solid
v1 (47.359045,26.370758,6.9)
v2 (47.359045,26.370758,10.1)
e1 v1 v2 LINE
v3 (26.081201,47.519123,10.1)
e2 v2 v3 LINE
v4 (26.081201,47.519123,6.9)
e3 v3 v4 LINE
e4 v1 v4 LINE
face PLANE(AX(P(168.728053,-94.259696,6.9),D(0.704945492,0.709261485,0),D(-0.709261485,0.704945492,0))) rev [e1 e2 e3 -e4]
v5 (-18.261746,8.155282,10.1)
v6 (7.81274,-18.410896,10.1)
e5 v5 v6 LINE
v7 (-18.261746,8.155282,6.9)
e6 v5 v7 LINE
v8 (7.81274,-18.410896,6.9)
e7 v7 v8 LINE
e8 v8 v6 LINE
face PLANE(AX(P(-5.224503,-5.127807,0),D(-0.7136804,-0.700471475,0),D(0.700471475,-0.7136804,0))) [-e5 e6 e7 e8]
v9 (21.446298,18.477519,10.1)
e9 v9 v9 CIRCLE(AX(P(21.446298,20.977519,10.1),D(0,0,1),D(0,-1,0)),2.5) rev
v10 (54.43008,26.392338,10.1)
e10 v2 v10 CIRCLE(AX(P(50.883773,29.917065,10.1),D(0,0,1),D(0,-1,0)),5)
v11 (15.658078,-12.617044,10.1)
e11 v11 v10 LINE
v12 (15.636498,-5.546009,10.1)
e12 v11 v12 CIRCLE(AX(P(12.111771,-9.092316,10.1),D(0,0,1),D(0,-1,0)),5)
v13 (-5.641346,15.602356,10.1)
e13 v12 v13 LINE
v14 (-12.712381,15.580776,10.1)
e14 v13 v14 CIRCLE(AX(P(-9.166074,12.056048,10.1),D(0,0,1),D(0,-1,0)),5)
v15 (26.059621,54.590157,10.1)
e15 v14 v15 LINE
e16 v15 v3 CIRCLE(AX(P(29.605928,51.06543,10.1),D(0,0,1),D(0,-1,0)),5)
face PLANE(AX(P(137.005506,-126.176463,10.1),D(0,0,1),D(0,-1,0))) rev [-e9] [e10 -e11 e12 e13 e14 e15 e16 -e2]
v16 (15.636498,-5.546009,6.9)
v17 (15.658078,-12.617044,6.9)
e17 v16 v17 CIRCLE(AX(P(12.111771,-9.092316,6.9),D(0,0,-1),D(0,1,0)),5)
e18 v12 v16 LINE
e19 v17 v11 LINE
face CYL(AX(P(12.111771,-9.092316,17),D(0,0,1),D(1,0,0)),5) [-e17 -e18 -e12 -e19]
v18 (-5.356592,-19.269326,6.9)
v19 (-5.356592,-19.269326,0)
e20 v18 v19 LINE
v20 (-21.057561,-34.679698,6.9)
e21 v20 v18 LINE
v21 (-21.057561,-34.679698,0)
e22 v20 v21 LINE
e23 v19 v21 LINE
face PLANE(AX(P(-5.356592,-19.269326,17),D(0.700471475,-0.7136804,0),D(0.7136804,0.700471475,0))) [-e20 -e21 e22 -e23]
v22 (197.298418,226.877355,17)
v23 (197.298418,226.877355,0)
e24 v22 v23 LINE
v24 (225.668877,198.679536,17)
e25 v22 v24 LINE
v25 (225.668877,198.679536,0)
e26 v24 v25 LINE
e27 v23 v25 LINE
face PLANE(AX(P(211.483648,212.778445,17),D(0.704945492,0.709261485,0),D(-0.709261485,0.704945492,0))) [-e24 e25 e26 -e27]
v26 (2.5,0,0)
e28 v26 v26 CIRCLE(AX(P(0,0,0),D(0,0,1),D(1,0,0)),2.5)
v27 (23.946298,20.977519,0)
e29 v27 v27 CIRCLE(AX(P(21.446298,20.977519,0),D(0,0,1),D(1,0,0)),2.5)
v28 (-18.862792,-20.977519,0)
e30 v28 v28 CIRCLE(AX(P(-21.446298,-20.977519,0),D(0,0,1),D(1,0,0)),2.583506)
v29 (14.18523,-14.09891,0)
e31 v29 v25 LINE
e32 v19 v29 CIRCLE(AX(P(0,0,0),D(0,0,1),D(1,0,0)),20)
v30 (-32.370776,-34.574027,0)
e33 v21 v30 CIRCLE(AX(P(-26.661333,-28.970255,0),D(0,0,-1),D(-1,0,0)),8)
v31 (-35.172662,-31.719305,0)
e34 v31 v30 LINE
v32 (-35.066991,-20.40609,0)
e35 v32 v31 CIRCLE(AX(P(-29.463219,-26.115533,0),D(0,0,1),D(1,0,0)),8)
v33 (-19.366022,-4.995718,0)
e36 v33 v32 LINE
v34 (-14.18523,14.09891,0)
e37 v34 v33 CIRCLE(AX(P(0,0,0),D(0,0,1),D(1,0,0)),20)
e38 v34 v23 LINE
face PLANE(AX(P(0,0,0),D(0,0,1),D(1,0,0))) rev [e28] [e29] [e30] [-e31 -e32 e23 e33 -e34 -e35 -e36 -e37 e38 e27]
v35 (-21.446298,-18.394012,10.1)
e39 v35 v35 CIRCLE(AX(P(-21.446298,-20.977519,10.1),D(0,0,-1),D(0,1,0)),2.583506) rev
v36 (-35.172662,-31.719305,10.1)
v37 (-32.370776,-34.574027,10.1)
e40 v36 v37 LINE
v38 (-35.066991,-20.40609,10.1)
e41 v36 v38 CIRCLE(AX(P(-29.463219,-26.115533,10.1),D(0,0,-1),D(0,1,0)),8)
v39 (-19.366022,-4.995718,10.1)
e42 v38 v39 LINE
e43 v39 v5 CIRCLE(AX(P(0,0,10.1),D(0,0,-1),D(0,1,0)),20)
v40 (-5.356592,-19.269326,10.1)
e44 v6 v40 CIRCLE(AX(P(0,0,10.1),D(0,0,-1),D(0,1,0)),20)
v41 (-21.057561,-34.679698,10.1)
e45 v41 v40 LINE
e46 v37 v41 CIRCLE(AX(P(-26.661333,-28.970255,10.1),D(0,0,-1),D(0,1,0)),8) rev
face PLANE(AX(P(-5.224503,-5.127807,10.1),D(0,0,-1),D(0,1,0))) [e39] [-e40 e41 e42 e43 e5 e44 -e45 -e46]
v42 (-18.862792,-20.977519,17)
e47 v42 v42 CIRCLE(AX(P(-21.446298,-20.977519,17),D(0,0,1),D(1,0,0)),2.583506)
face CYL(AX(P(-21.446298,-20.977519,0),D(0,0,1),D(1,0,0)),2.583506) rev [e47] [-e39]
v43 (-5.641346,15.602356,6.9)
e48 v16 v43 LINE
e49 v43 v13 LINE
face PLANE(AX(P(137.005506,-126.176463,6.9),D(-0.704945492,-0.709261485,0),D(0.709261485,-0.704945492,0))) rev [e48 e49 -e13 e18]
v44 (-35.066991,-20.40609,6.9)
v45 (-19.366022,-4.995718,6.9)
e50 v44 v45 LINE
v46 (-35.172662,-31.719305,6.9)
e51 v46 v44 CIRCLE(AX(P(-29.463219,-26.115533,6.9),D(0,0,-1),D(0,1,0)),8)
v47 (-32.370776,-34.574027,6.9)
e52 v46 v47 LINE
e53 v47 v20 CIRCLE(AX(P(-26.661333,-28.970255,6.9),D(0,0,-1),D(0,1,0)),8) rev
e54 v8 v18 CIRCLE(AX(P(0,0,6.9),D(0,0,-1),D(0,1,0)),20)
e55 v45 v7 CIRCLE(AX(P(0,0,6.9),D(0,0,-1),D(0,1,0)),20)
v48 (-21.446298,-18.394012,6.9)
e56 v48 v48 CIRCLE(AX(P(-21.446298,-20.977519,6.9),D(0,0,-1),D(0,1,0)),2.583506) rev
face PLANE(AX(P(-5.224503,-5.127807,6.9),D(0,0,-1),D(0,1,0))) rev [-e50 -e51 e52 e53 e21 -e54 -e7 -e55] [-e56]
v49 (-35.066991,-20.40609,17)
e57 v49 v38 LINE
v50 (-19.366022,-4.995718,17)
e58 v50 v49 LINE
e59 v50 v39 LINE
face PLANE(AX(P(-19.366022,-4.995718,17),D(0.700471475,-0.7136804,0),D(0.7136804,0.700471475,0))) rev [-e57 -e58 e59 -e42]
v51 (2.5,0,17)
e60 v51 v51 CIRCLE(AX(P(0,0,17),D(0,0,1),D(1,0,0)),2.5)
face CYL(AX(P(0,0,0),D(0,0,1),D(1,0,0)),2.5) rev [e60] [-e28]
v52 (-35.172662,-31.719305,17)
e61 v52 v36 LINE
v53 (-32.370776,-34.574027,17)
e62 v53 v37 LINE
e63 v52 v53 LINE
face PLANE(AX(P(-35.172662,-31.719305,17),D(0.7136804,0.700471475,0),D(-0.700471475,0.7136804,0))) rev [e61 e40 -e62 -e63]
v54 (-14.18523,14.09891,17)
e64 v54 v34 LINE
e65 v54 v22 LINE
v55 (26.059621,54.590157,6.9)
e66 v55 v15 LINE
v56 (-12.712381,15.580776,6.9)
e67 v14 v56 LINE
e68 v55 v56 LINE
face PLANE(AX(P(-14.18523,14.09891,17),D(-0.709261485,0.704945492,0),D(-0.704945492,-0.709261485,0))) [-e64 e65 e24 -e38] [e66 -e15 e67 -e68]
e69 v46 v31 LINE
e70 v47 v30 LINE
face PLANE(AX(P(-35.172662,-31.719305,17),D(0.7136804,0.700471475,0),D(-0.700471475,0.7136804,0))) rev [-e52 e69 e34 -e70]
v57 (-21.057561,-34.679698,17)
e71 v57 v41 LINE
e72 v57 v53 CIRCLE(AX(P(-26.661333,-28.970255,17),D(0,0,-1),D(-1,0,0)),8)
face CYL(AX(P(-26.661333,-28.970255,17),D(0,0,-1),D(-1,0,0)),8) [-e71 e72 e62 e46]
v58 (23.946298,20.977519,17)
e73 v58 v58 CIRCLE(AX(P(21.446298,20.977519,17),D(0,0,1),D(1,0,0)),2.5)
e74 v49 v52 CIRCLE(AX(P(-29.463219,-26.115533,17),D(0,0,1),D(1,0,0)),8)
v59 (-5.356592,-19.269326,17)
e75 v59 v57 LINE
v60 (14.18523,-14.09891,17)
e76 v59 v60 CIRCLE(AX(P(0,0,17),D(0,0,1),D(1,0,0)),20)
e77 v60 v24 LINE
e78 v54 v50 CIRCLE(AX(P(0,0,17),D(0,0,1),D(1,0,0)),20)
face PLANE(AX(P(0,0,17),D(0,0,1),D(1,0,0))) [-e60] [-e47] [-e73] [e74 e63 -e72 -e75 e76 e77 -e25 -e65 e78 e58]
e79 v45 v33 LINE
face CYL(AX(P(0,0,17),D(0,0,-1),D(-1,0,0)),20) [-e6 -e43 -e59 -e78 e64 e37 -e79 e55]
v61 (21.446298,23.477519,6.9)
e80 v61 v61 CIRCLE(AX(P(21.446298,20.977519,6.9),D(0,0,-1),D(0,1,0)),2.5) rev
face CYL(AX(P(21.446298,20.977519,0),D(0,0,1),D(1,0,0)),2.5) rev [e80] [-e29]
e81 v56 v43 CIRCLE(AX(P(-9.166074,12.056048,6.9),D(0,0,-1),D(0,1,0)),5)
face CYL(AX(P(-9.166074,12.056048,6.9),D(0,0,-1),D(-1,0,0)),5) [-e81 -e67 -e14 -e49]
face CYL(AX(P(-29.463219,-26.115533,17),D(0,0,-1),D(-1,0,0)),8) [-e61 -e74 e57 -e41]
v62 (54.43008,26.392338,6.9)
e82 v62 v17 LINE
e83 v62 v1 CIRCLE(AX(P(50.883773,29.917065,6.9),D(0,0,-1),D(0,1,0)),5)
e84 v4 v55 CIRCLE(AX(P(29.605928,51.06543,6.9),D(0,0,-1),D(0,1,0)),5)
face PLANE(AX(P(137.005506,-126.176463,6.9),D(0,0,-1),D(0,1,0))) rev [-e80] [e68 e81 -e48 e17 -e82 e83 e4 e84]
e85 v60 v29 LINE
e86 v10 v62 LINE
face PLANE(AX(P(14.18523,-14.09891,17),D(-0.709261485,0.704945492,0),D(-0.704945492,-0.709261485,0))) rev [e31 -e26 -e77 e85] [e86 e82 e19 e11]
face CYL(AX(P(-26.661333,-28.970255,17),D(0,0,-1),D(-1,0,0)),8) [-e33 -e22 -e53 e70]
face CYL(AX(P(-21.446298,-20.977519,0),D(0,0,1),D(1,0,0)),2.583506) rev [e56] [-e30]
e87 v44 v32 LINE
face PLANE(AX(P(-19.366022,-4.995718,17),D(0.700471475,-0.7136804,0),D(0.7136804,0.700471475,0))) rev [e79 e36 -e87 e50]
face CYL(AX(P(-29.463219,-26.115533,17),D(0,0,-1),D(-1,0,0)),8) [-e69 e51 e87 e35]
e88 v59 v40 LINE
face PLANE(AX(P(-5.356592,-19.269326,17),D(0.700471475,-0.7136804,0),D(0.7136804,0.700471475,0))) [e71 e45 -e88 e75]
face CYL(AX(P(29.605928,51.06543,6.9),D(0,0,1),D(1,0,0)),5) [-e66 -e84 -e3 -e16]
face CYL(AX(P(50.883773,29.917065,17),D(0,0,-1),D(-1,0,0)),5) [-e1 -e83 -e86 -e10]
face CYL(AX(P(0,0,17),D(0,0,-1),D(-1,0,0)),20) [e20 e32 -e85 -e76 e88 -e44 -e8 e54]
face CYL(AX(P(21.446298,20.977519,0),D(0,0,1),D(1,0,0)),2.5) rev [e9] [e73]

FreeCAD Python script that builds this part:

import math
import FreeCAD as App
import Part
import Sketcher

V = App.Vector
Q = App.Units.Quantity


def edges_at(feature, points):
    """Names of the edges that pass closest to the given points."""
    edges = feature.Shape.Edges
    near = lambda p: min(range(len(edges)), key=lambda i: edges[i].distToShape(Part.Vertex(*p))[0])
    return sorted({f"Edge{near(p) + 1}" for p in points})

doc = App.newDocument("Part")
body = doc.addObject("PartDesign::Body", "Body")

# Sketch on XY plane
sketch1 = doc.addObject("Sketcher::SketchObject", "Sketch")
body.addObject(sketch1)
sketch1.AttachmentSupport = (doc.XY_Plane, [""])
sketch1.MapMode = "FlatFace"
sketch1.addGeometry([
    Part.LineSegment(V(14.2, -14.1, 0), V(225.7, 198.7, 0)),  # 0
    Part.LineSegment(V(225.7, 198.7, 0), V(197.3, 226.9, 0)),  # 1
    Part.LineSegment(V(197.3, 226.9, 0), V(-14.2, 14.1, 0)),  # 2
    Part.ArcOfCircle(Part.Circle(V(0, 0, 0), V(0, 0, 1), 20), math.radians(135), math.radians(194)),  # 3
    Part.LineSegment(V(-19.4, -5, 0), V(-35.1, -20.4, 0)),  # 4
    Part.ArcOfCircle(Part.Circle(V(-29.5, -26.1, 0), V(0, 0, 1), 8), math.radians(134), math.radians(224)),  # 5
    Part.LineSegment(V(-35.2, -31.7, 0), V(-32.4, -34.6, 0)),  # 6
    Part.ArcOfCircle(Part.Circle(V(-26.7, -29, 0), V(0, 0, 1), 8), math.radians(-136), math.radians(-46)),  # 7
    Part.LineSegment(V(-21.1, -34.7, 0), V(-5.4, -19.3, 0)),  # 8
    Part.ArcOfCircle(Part.Circle(V(0, 0, 0), V(0, 0, 1), 20), math.radians(-106), math.radians(-45)),  # 9
], False)
sketch1.addConstraint([
    Sketcher.Constraint("Coincident", 0, 2, 1, 1),
    Sketcher.Constraint("Coincident", 1, 2, 2, 1),
    Sketcher.Constraint("Tangent", 2, 2, 3, 1),
    Sketcher.Constraint("Coincident", 3, 2, 4, 1),
    Sketcher.Constraint("Tangent", 4, 2, 5, 1),
    Sketcher.Constraint("Tangent", 5, 2, 6, 1),
    Sketcher.Constraint("Tangent", 6, 2, 7, 1),
    Sketcher.Constraint("Tangent", 7, 2, 8, 1),
    Sketcher.Constraint("Coincident", 8, 2, 9, 1),
    Sketcher.Constraint("Tangent", 9, 2, 0, 1),
    Sketcher.Constraint("Coincident", 3, 3, -1, 1),
    Sketcher.Constraint("Coincident", 9, 3, -1, 1),
    Sketcher.Constraint("Equal", 5, 7),
    Sketcher.Constraint("Equal", 3, 9),
    Sketcher.Constraint("Perpendicular", 0, 1),
    Sketcher.Constraint("Perpendicular", 1, 2),
    Sketcher.Constraint("Perpendicular", 4, 6),
    Sketcher.Constraint("Perpendicular", 6, 8),
    Sketcher.Constraint("Equal", 4, 8),
    Sketcher.Constraint("Radius", 3, Q("20 mm")),
    Sketcher.Constraint("Radius", 5, Q("8 mm")),
    Sketcher.Constraint("Distance", 0, Q("300 mm")),
    Sketcher.Constraint("Distance", 4, Q("22 mm")),
    Sketcher.Constraint("Distance", 6, Q("4 mm")),
    Sketcher.Constraint("DistanceY", 4, 2, 2, 2, Q("34.505 mm")),
    Sketcher.Constraint("DistanceY", 7, 2, -1, 1, Q("34.679698 mm")),
])
pad1 = doc.addObject("PartDesign::Pad", "Pad")
body.addObject(pad1)
pad1.Profile = sketch1
pad1.Length = 17

# Sketch on XY plane
sketch2 = doc.addObject("Sketcher::SketchObject", "Sketch001")
body.addObject(sketch2)
sketch2.AttachmentSupport = (doc.XY_Plane, [""])
sketch2.MapMode = "FlatFace"
sketch2.AttachmentOffset = App.Placement(V(0, 0, 17), App.Rotation())
sketch2.addGeometry(Part.Circle(V(0, 0, 0), V(0, 0, 1), 2.5), False)
sketch2.addConstraint([
    Sketcher.Constraint("Coincident", 0, 3, -1, 1),
    Sketcher.Constraint("Diameter", 0, Q("5 mm")),
])
pocket1 = doc.addObject("PartDesign::Pocket", "Pocket")
body.addObject(pocket1)
pocket1.Profile = sketch2
pocket1.Type = "ThroughAll"

# Sketch on XY plane
sketch3 = doc.addObject("Sketcher::SketchObject", "Sketch002")
body.addObject(sketch3)
sketch3.AttachmentSupport = (doc.XY_Plane, [""])
sketch3.MapMode = "FlatFace"
sketch3.AttachmentOffset = App.Placement(V(0, 0, 17), App.Rotation())
sketch3.addGeometry(Part.Circle(V(-21.4, -21, 0), V(0, 0, 1), 2.6), False)
sketch3.addConstraint([
    Sketcher.Constraint("Diameter", 0, Q("5.167013 mm")),
    Sketcher.Constraint("DistanceX", 0, 3, -1, 1, Q("21.446298 mm")),
    Sketcher.Constraint("DistanceY", 0, 3, -1, 1, Q("20.977519 mm")),
])
pocket2 = doc.addObject("PartDesign::Pocket", "Pocket001")
body.addObject(pocket2)
pocket2.Profile = sketch3
pocket2.Type = "ThroughAll"

# Sketch on an angled plane
sketch4 = doc.addObject("Sketcher::SketchObject", "Sketch003")
body.addObject(sketch4)
sketch4.Placement = App.Placement(V(-33.771719, -33.146666, 0), App.Rotation(V(0, 0, 1), V(-0.700471475, 0.7136804, 0), V(-0.7136804, -0.700471475, 0), "ZXY"))
sketch4.addGeometry([
    Part.LineSegment(V(6.9, -27.5, 0), V(10.1, -27.5, 0)),
    Part.LineSegment(V(10.1, -27.5, 0), V(10.1, 27.5, 0)),
    Part.LineSegment(V(10.1, 27.5, 0), V(6.9, 27.5, 0)),
    Part.LineSegment(V(6.9, 27.5, 0), V(6.9, -27.5, 0)),
], False)
sketch4.addConstraint([
    Sketcher.Constraint("Coincident", 0, 2, 1, 1),
    Sketcher.Constraint("Coincident", 1, 2, 2, 1),
    Sketcher.Constraint("Coincident", 2, 2, 3, 1),
    Sketcher.Constraint("Coincident", 3, 2, 0, 1),
    Sketcher.Constraint("Horizontal", 0),
    Sketcher.Constraint("Vertical", 1),
    Sketcher.Constraint("Horizontal", 2),
    Sketcher.Constraint("Vertical", 3),
    Sketcher.Constraint("DistanceX", 0, 1, 0, 2, Q("3.2 mm")),
    Sketcher.Constraint("DistanceX", -1, 1, 0, 2, Q("10.1 mm")),
    Sketcher.Constraint("DistanceY", 1, 1, 1, 2, Q("55.052919 mm")),
    Sketcher.Constraint("DistanceY", 0, 2, -1, 1, Q("27.526459 mm")),
])
pocket3 = doc.addObject("PartDesign::Pocket", "Pocket002")
body.addObject(pocket3)
pocket3.Profile = sketch4
pocket3.Length = 40

# Sketch on XY plane
sketch5 = doc.addObject("Sketcher::SketchObject", "Sketch004")
body.addObject(sketch5)
sketch5.AttachmentSupport = (doc.XY_Plane, [""])
sketch5.MapMode = "FlatFace"
sketch5.AttachmentOffset = App.Placement(V(0, 0, 17), App.Rotation())
sketch5.addGeometry(Part.Circle(V(21.4, 21, 0), V(0, 0, 1), 2.5), False)
sketch5.addConstraint([
    Sketcher.Constraint("Diameter", 0, Q("5 mm")),
    Sketcher.Constraint("DistanceX", -1, 1, 0, 3, Q("21.446298 mm")),
    Sketcher.Constraint("DistanceY", -1, 1, 0, 3, Q("20.977519 mm")),
])
pocket4 = doc.addObject("PartDesign::Pocket", "Pocket003")
body.addObject(pocket4)
pocket4.Profile = sketch5
pocket4.Type = "ThroughAll"

# Sketch on an angled plane
sketch6 = doc.addObject("Sketcher::SketchObject", "Sketch005")
body.addObject(sketch6)
sketch6.Placement = App.Placement(V(-14.18523, 14.09891, 0), App.Rotation(V(0, 0, 1), V(0.704945492, 0.709261485, 0), V(-0.709261485, 0.704945492, 0), "ZXY"))
sketch6.addGeometry([
    Part.LineSegment(V(6.9, 52.1, 0), V(6.9, 7.1, 0)),
    Part.LineSegment(V(6.9, 7.1, 0), V(10.1, 7.1, 0)),
    Part.LineSegment(V(10.1, 7.1, 0), V(10.1, 52.1, 0)),
    Part.LineSegment(V(10.1, 52.1, 0), V(6.9, 52.1, 0)),
], False)
sketch6.addConstraint([
    Sketcher.Constraint("Coincident", 0, 2, 1, 1),
    Sketcher.Constraint("Coincident", 1, 2, 2, 1),
    Sketcher.Constraint("Coincident", 2, 2, 3, 1),
    Sketcher.Constraint("Coincident", 3, 2, 0, 1),
    Sketcher.Constraint("Vertical", 0),
    Sketcher.Constraint("Horizontal", 1),
    Sketcher.Constraint("Vertical", 2),
    Sketcher.Constraint("Horizontal", 3),
    Sketcher.Constraint("DistanceY", 0, 2, 0, 1, Q("45 mm")),
    Sketcher.Constraint("DistanceX", 1, 1, 1, 2, Q("3.2 mm")),
    Sketcher.Constraint("DistanceX", -1, 1, 0, 2, Q("6.9 mm")),
    Sketcher.Constraint("DistanceY", -1, 1, 0, 2, Q("7.089308 mm")),
])
pocket5 = doc.addObject("PartDesign::Pocket", "Pocket004")
body.addObject(pocket5)
pocket5.Profile = sketch6
pocket5.Type = "ThroughAll"
doc.recompute()

fillet = doc.addObject("PartDesign::Fillet", "Fillet")
body.addObject(fillet)
fillet.Base = (pocket5, edges_at(pocket5, [
    (50.905, 22.846, 8.5),
    (19.183, -9.071, 8.5),
    (-9.188, 19.127, 8.5),
    (22.535, 51.044, 8.5),
]))
fillet.Radius = 5

doc.recompute()
